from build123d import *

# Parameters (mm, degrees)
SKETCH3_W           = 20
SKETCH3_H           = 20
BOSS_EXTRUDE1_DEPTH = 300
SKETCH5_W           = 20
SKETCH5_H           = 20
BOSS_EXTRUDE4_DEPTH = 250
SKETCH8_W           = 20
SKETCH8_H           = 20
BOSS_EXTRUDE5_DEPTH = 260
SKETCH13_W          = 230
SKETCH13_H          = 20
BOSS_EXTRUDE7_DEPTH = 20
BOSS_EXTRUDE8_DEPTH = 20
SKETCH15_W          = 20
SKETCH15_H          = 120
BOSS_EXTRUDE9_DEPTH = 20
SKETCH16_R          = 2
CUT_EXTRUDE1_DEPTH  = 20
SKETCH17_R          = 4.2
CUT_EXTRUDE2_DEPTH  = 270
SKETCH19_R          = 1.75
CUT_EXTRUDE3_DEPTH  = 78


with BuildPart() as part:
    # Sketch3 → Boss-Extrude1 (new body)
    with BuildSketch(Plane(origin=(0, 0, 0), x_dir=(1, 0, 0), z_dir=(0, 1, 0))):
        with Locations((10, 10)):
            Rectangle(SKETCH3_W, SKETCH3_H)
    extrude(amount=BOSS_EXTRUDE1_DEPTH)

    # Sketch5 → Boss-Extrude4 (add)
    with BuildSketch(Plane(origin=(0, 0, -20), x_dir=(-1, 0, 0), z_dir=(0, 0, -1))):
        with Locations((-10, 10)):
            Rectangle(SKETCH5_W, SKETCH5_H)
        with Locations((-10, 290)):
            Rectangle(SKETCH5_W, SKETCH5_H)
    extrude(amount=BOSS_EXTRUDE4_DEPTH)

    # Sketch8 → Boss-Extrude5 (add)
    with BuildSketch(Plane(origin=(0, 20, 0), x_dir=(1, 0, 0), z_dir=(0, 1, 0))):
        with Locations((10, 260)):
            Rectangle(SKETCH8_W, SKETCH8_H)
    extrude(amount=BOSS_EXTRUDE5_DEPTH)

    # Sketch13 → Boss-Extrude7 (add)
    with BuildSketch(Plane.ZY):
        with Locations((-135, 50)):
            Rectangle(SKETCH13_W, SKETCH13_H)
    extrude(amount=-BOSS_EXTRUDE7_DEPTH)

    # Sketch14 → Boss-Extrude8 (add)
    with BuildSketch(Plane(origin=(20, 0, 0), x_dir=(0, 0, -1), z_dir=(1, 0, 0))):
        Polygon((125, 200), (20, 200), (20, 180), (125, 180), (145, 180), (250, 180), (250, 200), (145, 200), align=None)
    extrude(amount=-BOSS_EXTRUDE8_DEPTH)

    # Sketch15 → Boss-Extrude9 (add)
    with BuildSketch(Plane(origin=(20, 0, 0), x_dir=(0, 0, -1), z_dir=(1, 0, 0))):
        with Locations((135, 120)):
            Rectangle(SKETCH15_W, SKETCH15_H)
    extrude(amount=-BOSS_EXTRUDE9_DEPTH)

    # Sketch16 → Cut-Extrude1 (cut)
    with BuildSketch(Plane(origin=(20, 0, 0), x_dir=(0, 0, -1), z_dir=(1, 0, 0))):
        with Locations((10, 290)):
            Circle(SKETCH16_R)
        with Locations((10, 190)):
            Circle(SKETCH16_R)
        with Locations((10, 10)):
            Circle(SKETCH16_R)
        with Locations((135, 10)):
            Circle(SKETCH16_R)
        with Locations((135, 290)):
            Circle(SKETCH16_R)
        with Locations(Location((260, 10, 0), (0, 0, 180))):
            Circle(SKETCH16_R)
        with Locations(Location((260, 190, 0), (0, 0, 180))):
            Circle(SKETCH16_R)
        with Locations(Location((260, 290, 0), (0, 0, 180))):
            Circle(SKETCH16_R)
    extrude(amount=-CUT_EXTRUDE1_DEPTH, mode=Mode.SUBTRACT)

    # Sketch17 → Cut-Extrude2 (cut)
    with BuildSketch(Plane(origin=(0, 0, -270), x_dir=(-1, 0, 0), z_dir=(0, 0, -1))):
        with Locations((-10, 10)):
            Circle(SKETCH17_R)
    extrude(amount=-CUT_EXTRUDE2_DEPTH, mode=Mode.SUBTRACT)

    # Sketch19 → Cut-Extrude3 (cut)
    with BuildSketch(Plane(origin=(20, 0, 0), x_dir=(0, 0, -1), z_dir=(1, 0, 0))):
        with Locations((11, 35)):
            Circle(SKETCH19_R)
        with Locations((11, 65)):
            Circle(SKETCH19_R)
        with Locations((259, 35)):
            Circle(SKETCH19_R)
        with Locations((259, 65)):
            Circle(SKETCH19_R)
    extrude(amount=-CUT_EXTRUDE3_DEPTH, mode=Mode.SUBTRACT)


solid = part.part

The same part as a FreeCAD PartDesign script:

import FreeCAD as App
import Part
import Sketcher
Q = App.Units.Quantity


def add_polygon(sketch, points):
    """Adds a closed chain of lines whose ends are joined by coincident constraints."""
    first, n = sketch.GeometryCount, len(points)
    for a, b in zip(points, points[1:] + points[:1]):
        sketch.addGeometry(Part.LineSegment(App.Vector(*a, 0), App.Vector(*b, 0)), False)
    for i in range(n):
        sketch.addConstraint(Sketcher.Constraint("Coincident", first + i, 2, first + (i + 1) % n, 1))

doc = App.newDocument("Part")
params = doc.addObject("Spreadsheet::Sheet", "Params")
for row, (alias, value) in enumerate([
    ("sketch1_width", "20 mm"),
    ("pad1_length", "300 mm"),
    ("sketch2_width", "20 mm"),
    ("pad2_length", "250 mm"),
    ("sketch3_width", "20 mm"),
    ("pad3_length", "260 mm"),
    ("sketch4_width", "20 mm"),
    ("sketch4_height", "230 mm"),
    ("pad4_length", "20 mm"),
    ("sketch5_width", "20 mm"),
    ("sketch5_height", "230 mm"),
    ("pad5_length", "20 mm"),
    ("sketch6_width", "120 mm"),
    ("sketch6_height", "20 mm"),
    ("pad6_length", "20 mm"),
    ("sketch7_diameter", "4 mm"),
    ("pocket1_length", "20 mm"),
    ("sketch8_diameter", "8.4 mm"),
    ("pocket2_length", "270 mm"),
    ("sketch9_diameter", "3.5 mm"),
    ("pocket3_length", "78 mm"),
], start=1):
    params.set(f"A{row}", alias)
    params.set(f"B{row}", "=" + value)
    params.setAlias(f"B{row}", alias)

body = doc.addObject("PartDesign::Body", "Body")

sketch1 = body.newObject("Sketcher::SketchObject", "Sketch")
sketch1.AttachmentSupport = (doc.getObject("XZ_Plane"), [""])
sketch1.MapMode = "FlatFace"
add_polygon(sketch1, [(0, -20), (0, 0), (20, 0), (20, -20)])
sketch1.addConstraint(Sketcher.Constraint("Vertical", 0))
sketch1.addConstraint(Sketcher.Constraint("Horizontal", 1))
sketch1.addConstraint(Sketcher.Constraint("Vertical", 2))
sketch1.addConstraint(Sketcher.Constraint("Horizontal", 3))
sketch1.addConstraint(Sketcher.Constraint("Coincident", 0, 2, -1, 1))
sketch1.addConstraint(Sketcher.Constraint("Equal", 3, 0))
sketch1.addConstraint(Sketcher.Constraint("DistanceX", 1, 1, 1, 2, Q("20 mm")))
sketch1.setExpression("Constraints[10]", "Params.sketch1_width")
pad1 = body.newObject("PartDesign::Pad", "Pad")
pad1.Profile = sketch1
pad1.setExpression("Length", "Params.pad1_length")
pad1.Reversed = True

sketch2 = body.newObject("Sketcher::SketchObject", "Sketch001")
sketch2.AttachmentSupport = (doc.getObject("XY_Plane"), [""])
sketch2.MapMode = "FlatFace"
sketch2.AttachmentOffset = App.Placement(App.Vector(0, 0, -20), App.Rotation())
add_polygon(sketch2, [(20, 20), (20, 0), (0, 0), (0, 20)])
add_polygon(sketch2, [(20, 300), (20, 280), (0, 280), (0, 300)])
sketch2.addConstraint(Sketcher.Constraint("Vertical", 0))
sketch2.addConstraint(Sketcher.Constraint("Horizontal", 1))
sketch2.addConstraint(Sketcher.Constraint("Vertical", 2))
sketch2.addConstraint(Sketcher.Constraint("Horizontal", 3))
sketch2.addConstraint(Sketcher.Constraint("Vertical", 4))
sketch2.addConstraint(Sketcher.Constraint("Horizontal", 5))
sketch2.addConstraint(Sketcher.Constraint("Vertical", 6))
sketch2.addConstraint(Sketcher.Constraint("Horizontal", 7))
sketch2.addConstraint(Sketcher.Constraint("Coincident", 1, 2, -1, 1))
sketch2.addConstraint(Sketcher.Constraint("PointOnObject", 5, 2, -2))
sketch2.addConstraint(Sketcher.Constraint("Vertical", 3, 2, 4, 2))
sketch2.addConstraint(Sketcher.Constraint("Equal", 7, 0))
sketch2.addConstraint(Sketcher.Constraint("Equal", 2, 4))
sketch2.addConstraint(Sketcher.Constraint("DistanceX", 1, 2, 1, 1, Q("20 mm")))
sketch2.addConstraint(Sketcher.Constraint("DistanceY", -1, 1, 4, 2, Q("280 mm")))
sketch2.setExpression("Constraints[21]", "Params.sketch2_width")
pad2 = body.newObject("PartDesign::Pad", "Pad001")
pad2.Profile = sketch2
pad2.setExpression("Length", "Params.pad2_length")
pad2.Reversed = True

sketch3 = body.newObject("Sketcher::SketchObject", "Sketch002")
sketch3.AttachmentSupport = (doc.getObject("XZ_Plane"), [""])
sketch3.MapMode = "FlatFace"
sketch3.AttachmentOffset = App.Placement(App.Vector(0, 0, -20), App.Rotation())
add_polygon(sketch3, [(0, -270), (0, -250), (20, -250), (20, -270)])
sketch3.addConstraint(Sketcher.Constraint("Vertical", 0))
sketch3.addConstraint(Sketcher.Constraint("Horizontal", 1))
sketch3.addConstraint(Sketcher.Constraint("Vertical", 2))
sketch3.addConstraint(Sketcher.Constraint("Horizontal", 3))
sketch3.addConstraint(Sketcher.Constraint("PointOnObject", 0, 2, -2))
sketch3.addConstraint(Sketcher.Constraint("Equal", 3, 0))
sketch3.addConstraint(Sketcher.Constraint("DistanceX", 1, 1, 1, 2, Q("20 mm")))
sketch3.addConstraint(Sketcher.Constraint("DistanceY", 0, 2, -1, 1, Q("250 mm")))
sketch3.setExpression("Constraints[10]", "Params.sketch3_width")
pad3 = body.newObject("PartDesign::Pad", "Pad002")
pad3.Profile = sketch3
pad3.setExpression("Length", "Params.pad3_length")
pad3.Reversed = True

sketch4 = body.newObject("Sketcher::SketchObject", "Sketch003")
sketch4.AttachmentSupport = (doc.getObject("YZ_Plane"), [""])
sketch4.MapMode = "FlatFace"
add_polygon(sketch4, [(60, -250), (40, -250), (40, -20), (60, -20)])
sketch4.addConstraint(Sketcher.Constraint("Horizontal", 0))
sketch4.addConstraint(Sketcher.Constraint("Vertical", 1))
sketch4.addConstraint(Sketcher.Constraint("Horizontal", 2))
sketch4.addConstraint(Sketcher.Constraint("Vertical", 3))
sketch4.addConstraint(Sketcher.Constraint("DistanceX", 0, 2, 0, 1, Q("20 mm")))
sketch4.addConstraint(Sketcher.Constraint("DistanceY", 1, 1, 1, 2, Q("230 mm")))
sketch4.addConstraint(Sketcher.Constraint("DistanceX", -1, 1, 0, 2, Q("40 mm")))
sketch4.addConstraint(Sketcher.Constraint("DistanceY", 0, 2, -1, 1, Q("250 mm")))
sketch4.setExpression("Constraints[8]", "Params.sketch4_width")
sketch4.setExpression("Constraints[9]", "Params.sketch4_height")
pad4 = body.newObject("PartDesign::Pad", "Pad003")
pad4.Profile = sketch4
pad4.setExpression("Length", "Params.pad4_length")

sketch5 = body.newObject("Sketcher::SketchObject", "Sketch004")
sketch5.AttachmentSupport = (doc.getObject("YZ_Plane"), [""])
sketch5.MapMode = "FlatFace"
sketch5.AttachmentOffset = App.Placement(App.Vector(0, 0, 20), App.Rotation())
add_polygon(sketch5, [(200, -20), (180, -20), (180, -250), (200, -250)])
sketch5.addConstraint(Sketcher.Constraint("Horizontal", 0))
sketch5.addConstraint(Sketcher.Constraint("Vertical", 1))
sketch5.addConstraint(Sketcher.Constraint("Horizontal", 2))
sketch5.addConstraint(Sketcher.Constraint("Vertical", 3))
sketch5.addConstraint(Sketcher.Constraint("DistanceX", 0, 2, 0, 1, Q("20 mm")))
sketch5.addConstraint(Sketcher.Constraint("DistanceY", 1, 2, 1, 1, Q("230 mm")))
sketch5.addConstraint(Sketcher.Constraint("DistanceX", -1, 1, 0, 2, Q("180 mm")))
sketch5.addConstraint(Sketcher.Constraint("DistanceY", 0, 2, -1, 1, Q("20 mm")))
sketch5.setExpression("Constraints[8]", "Params.sketch5_width")
sketch5.setExpression("Constraints[9]", "Params.sketch5_height")
pad5 = body.newObject("PartDesign::Pad", "Pad004")
pad5.Profile = sketch5
pad5.setExpression("Length", "Params.pad5_length")
pad5.Reversed = True

sketch6 = body.newObject("Sketcher::SketchObject", "Sketch005")
sketch6.AttachmentSupport = (doc.getObject("YZ_Plane"), [""])
sketch6.MapMode = "FlatFace"
sketch6.AttachmentOffset = App.Placement(App.Vector(0, 0, 20), App.Rotation())
add_polygon(sketch6, [(180, -125), (60, -125), (60, -145), (180, -145)])
sketch6.addConstraint(Sketcher.Constraint("Horizontal", 0))
sketch6.addConstraint(Sketcher.Constraint("Vertical", 1))
sketch6.addConstraint(Sketcher.Constraint("Horizontal", 2))
sketch6.addConstraint(Sketcher.Constraint("Vertical", 3))
sketch6.addConstraint(Sketcher.Constraint("DistanceX", 0, 2, 0, 1, Q("120 mm")))
sketch6.addConstraint(Sketcher.Constraint("DistanceY", 1, 2, 1, 1, Q("20 mm")))
sketch6.addConstraint(Sketcher.Constraint("DistanceX", -1, 1, 0, 2, Q("60 mm")))
sketch6.addConstraint(Sketcher.Constraint("DistanceY", 0, 2, -1, 1, Q("125 mm")))
sketch6.setExpression("Constraints[8]", "Params.sketch6_width")
sketch6.setExpression("Constraints[9]", "Params.sketch6_height")
pad6 = body.newObject("PartDesign::Pad", "Pad005")
pad6.Profile = sketch6
pad6.setExpression("Length", "Params.pad6_length")
pad6.Reversed = True

sketch7 = body.newObject("Sketcher::SketchObject", "Sketch006")
sketch7.AttachmentSupport = (doc.getObject("YZ_Plane"), [""])
sketch7.MapMode = "FlatFace"
sketch7.AttachmentOffset = App.Placement(App.Vector(0, 0, 20), App.Rotation())
sketch7.addGeometry(Part.Circle(App.Vector(290, -10, 0), App.Vector(0, 0, 1), 2), False)
sketch7.addGeometry(Part.Circle(App.Vector(190, -10, 0), App.Vector(0, 0, 1), 2), False)
sketch7.addGeometry(Part.Circle(App.Vector(10, -10, 0), App.Vector(0, 0, 1), 2), False)
sketch7.addGeometry(Part.Circle(App.Vector(10, -135, 0), App.Vector(0, 0, 1), 2), False)
sketch7.addGeometry(Part.Circle(App.Vector(290, -135, 0), App.Vector(0, 0, 1), 2), False)
sketch7.addGeometry(Part.Circle(App.Vector(10, -260, 0), App.Vector(0, 0, 1), 2), False)
sketch7.addGeometry(Part.Circle(App.Vector(190, -260, 0), App.Vector(0, 0, 1), 2), False)
sketch7.addGeometry(Part.Circle(App.Vector(290, -260, 0), App.Vector(0, 0, 1), 2), False)
sketch7.addConstraint(Sketcher.Constraint("Equal", 0, 1))
sketch7.addConstraint(Sketcher.Constraint("Equal", 1, 2))
sketch7.addConstraint(Sketcher.Constraint("Equal", 2, 3))
sketch7.addConstraint(Sketcher.Constraint("Equal", 3, 4))
sketch7.addConstraint(Sketcher.Constraint("Equal", 4, 5))
sketch7.addConstraint(Sketcher.Constraint("Equal", 5, 6))
sketch7.addConstraint(Sketcher.Constraint("Equal", 6, 7))
sketch7.addConstraint(Sketcher.Constraint("Horizontal", 0, 3, 1, 3))
sketch7.addConstraint(Sketcher.Constraint("Horizontal", 1, 3, 2, 3))
sketch7.addConstraint(Sketcher.Constraint("Horizontal", 3, 3, 4, 3))
sketch7.addConstraint(Sketcher.Constraint("Horizontal", 5, 3, 6, 3))
sketch7.addConstraint(Sketcher.Constraint("Horizontal", 6, 3, 7, 3))
sketch7.addConstraint(Sketcher.Constraint("Vertical", 2, 3, 3, 3))
sketch7.addConstraint(Sketcher.Constraint("Vertical", 0, 3, 4, 3))
sketch7.addConstraint(Sketcher.Constraint("Vertical", 3, 3, 5, 3))
sketch7.addConstraint(Sketcher.Constraint("Vertical", 1, 3, 6, 3))
sketch7.addConstraint(Sketcher.Constraint("Vertical", 4, 3, 7, 3))
sketch7.addConstraint(Sketcher.Constraint("Diameter", 0, Q("4 mm")))
sketch7.addConstraint(Sketcher.Constraint("DistanceX", -1, 1, 0, 3, Q("290 mm")))
sketch7.addConstraint(Sketcher.Constraint("DistanceY", 0, 3, -1, 1, Q("10 mm")))
sketch7.addConstraint(Sketcher.Constraint("DistanceX", -1, 1, 1, 3, Q("190 mm")))
sketch7.addConstraint(Sketcher.Constraint("DistanceX", -1, 1, 2, 3, Q("10 mm")))
sketch7.addConstraint(Sketcher.Constraint("DistanceY", 3, 3, -1, 1, Q("135 mm")))
sketch7.addConstraint(Sketcher.Constraint("DistanceY", 5, 3, -1, 1, Q("260 mm")))
sketch7.setExpression("Constraints[17]", "Params.sketch7_diameter")
pocket1 = body.newObject("PartDesign::Pocket", "Pocket")
pocket1.Profile = sketch7
pocket1.setExpression("Length", "Params.pocket1_length")

sketch8 = body.newObject("Sketcher::SketchObject", "Sketch007")
sketch8.AttachmentSupport = (doc.getObject("XY_Plane"), [""])
sketch8.MapMode = "FlatFace"
sketch8.AttachmentOffset = App.Placement(App.Vector(0, 0, -270), App.Rotation())
sketch8.addGeometry(Part.Circle(App.Vector(10, 10, 0), App.Vector(0, 0, 1), 4.2), False)
sketch8.addConstraint(Sketcher.Constraint("Diameter", 0, Q("8.4 mm")))
sketch8.addConstraint(Sketcher.Constraint("DistanceX", -1, 1, 0, 3, Q("10 mm")))
sketch8.addConstraint(Sketcher.Constraint("DistanceY", -1, 1, 0, 3, Q("10 mm")))
sketch8.setExpression("Constraints[0]", "Params.sketch8_diameter")
pocket2 = body.newObject("PartDesign::Pocket", "Pocket001")
pocket2.Profile = sketch8
pocket2.setExpression("Length", "Params.pocket2_length")
pocket2.Reversed = True

sketch9 = body.newObject("Sketcher::SketchObject", "Sketch008")
sketch9.AttachmentSupport = (doc.getObject("YZ_Plane"), [""])
sketch9.MapMode = "FlatFace"
sketch9.AttachmentOffset = App.Placement(App.Vector(0, 0, 20), App.Rotation())
sketch9.addGeometry(Part.Circle(App.Vector(35, -11, 0), App.Vector(0, 0, 1), 1.75), False)
sketch9.addGeometry(Part.Circle(App.Vector(65, -11, 0), App.Vector(0, 0, 1), 1.75), False)
sketch9.addGeometry(Part.Circle(App.Vector(35, -259, 0), App.Vector(0, 0, 1), 1.75), False)
sketch9.addGeometry(Part.Circle(App.Vector(65, -259, 0), App.Vector(0, 0, 1), 1.75), False)
sketch9.addConstraint(Sketcher.Constraint("Equal", 0, 1))
sketch9.addConstraint(Sketcher.Constraint("Equal", 1, 2))
sketch9.addConstraint(Sketcher.Constraint("Equal", 2, 3))
sketch9.addConstraint(Sketcher.Constraint("Horizontal", 0, 3, 1, 3))
sketch9.addConstraint(Sketcher.Constraint("Horizontal", 2, 3, 3, 3))
sketch9.addConstraint(Sketcher.Constraint("Vertical", 0, 3, 2, 3))
sketch9.addConstraint(Sketcher.Constraint("Vertical", 1, 3, 3, 3))
sketch9.addConstraint(Sketcher.Constraint("Diameter", 0, Q("3.5 mm")))
sketch9.addConstraint(Sketcher.Constraint("DistanceX", -1, 1, 0, 3, Q("35 mm")))
sketch9.addConstraint(Sketcher.Constraint("DistanceY", 0, 3, -1, 1, Q("11 mm")))
sketch9.addConstraint(Sketcher.Constraint("DistanceX", -1, 1, 1, 3, Q("65 mm")))
sketch9.addConstraint(Sketcher.Constraint("DistanceY", 2, 3, -1, 1, Q("259 mm")))
sketch9.setExpression("Constraints[7]", "Params.sketch9_diameter")
pocket3 = body.newObject("PartDesign::Pocket", "Pocket002")
pocket3.Profile = sketch9
pocket3.setExpression("Length", "Params.pocket3_length")

doc.recompute()
